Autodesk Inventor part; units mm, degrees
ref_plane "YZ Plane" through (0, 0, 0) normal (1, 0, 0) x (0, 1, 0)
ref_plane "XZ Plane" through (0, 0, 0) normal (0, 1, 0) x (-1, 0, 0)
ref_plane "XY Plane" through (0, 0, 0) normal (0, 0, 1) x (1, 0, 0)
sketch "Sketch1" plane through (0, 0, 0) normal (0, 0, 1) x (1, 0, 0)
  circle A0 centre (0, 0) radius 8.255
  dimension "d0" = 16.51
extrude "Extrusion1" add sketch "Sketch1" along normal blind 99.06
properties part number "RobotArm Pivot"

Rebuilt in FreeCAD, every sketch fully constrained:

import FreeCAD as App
import Part
import Sketcher
from FreeCAD import Vector
Q = App.Units.Quantity

doc = App.newDocument("Part")
body = doc.addObject("PartDesign::Body", "Body")

# Sketch on XY plane
sketch1 = doc.addObject("Sketcher::SketchObject", "Sketch")
body.addObject(sketch1)
sketch1.AttachmentSupport = (doc.XY_Plane, [""])
sketch1.MapMode = "FlatFace"
sketch1.addGeometry(Part.Circle(Vector(0, 0, 0), Vector(0, 0, 1), 8), False)
sketch1.addConstraint([
    Sketcher.Constraint("Coincident", 0, 3, -1, 1),
    Sketcher.Constraint("Diameter", 0, Q("0.65 in")),
])
pad1 = doc.addObject("PartDesign::Pad", "Pad")
body.addObject(pad1)
pad1.Profile = sketch1
pad1.Length = Q("3.9 in")

doc.recompute()
